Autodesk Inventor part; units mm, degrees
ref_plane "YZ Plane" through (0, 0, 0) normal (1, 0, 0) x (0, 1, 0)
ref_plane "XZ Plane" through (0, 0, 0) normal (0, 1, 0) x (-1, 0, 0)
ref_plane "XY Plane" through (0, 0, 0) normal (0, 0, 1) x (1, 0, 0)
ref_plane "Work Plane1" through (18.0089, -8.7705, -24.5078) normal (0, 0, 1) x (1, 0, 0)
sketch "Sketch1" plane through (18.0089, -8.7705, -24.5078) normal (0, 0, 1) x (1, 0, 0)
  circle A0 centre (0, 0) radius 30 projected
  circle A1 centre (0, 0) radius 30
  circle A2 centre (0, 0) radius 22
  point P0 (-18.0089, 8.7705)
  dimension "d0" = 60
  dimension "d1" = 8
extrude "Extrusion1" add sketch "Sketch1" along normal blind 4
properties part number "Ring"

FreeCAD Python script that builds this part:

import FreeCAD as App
import Part
import Sketcher

V = App.Vector

doc = App.newDocument("Part")
body = doc.addObject("PartDesign::Body", "Body")

# Sketch on XY plane
sketch1 = body.newObject("Sketcher::SketchObject", "Sketch")
sketch1.AttachmentSupport = (doc.getObject("XY_Plane"), [""])
sketch1.MapMode = "FlatFace"
sketch1.AttachmentOffset = App.Placement(V(0, 0, -24.5078), App.Rotation())
sketch1.addGeometry(Part.Circle(V(18, -9, 0), V(0, 0, 1), 30), False)
sketch1.addGeometry(Part.Circle(V(18, -9, 0), V(0, 0, 1), 22), False)
sketch1.addConstraint(Sketcher.Constraint("Coincident", 1, 3, 0, 3))
sketch1.addConstraint(Sketcher.Constraint("Diameter", 0, 60.0))
sketch1.addConstraint(Sketcher.Constraint("Diameter", 1, 44.0))
sketch1.addConstraint(Sketcher.Constraint("DistanceX", -1, 1, 0, 3, 18.009))
sketch1.addConstraint(Sketcher.Constraint("DistanceY", 0, 3, -1, 1, 8.7705))
pad1 = body.newObject("PartDesign::Pad", "Pad")
pad1.Profile = sketch1
pad1.Length = 4

doc.recompute()
